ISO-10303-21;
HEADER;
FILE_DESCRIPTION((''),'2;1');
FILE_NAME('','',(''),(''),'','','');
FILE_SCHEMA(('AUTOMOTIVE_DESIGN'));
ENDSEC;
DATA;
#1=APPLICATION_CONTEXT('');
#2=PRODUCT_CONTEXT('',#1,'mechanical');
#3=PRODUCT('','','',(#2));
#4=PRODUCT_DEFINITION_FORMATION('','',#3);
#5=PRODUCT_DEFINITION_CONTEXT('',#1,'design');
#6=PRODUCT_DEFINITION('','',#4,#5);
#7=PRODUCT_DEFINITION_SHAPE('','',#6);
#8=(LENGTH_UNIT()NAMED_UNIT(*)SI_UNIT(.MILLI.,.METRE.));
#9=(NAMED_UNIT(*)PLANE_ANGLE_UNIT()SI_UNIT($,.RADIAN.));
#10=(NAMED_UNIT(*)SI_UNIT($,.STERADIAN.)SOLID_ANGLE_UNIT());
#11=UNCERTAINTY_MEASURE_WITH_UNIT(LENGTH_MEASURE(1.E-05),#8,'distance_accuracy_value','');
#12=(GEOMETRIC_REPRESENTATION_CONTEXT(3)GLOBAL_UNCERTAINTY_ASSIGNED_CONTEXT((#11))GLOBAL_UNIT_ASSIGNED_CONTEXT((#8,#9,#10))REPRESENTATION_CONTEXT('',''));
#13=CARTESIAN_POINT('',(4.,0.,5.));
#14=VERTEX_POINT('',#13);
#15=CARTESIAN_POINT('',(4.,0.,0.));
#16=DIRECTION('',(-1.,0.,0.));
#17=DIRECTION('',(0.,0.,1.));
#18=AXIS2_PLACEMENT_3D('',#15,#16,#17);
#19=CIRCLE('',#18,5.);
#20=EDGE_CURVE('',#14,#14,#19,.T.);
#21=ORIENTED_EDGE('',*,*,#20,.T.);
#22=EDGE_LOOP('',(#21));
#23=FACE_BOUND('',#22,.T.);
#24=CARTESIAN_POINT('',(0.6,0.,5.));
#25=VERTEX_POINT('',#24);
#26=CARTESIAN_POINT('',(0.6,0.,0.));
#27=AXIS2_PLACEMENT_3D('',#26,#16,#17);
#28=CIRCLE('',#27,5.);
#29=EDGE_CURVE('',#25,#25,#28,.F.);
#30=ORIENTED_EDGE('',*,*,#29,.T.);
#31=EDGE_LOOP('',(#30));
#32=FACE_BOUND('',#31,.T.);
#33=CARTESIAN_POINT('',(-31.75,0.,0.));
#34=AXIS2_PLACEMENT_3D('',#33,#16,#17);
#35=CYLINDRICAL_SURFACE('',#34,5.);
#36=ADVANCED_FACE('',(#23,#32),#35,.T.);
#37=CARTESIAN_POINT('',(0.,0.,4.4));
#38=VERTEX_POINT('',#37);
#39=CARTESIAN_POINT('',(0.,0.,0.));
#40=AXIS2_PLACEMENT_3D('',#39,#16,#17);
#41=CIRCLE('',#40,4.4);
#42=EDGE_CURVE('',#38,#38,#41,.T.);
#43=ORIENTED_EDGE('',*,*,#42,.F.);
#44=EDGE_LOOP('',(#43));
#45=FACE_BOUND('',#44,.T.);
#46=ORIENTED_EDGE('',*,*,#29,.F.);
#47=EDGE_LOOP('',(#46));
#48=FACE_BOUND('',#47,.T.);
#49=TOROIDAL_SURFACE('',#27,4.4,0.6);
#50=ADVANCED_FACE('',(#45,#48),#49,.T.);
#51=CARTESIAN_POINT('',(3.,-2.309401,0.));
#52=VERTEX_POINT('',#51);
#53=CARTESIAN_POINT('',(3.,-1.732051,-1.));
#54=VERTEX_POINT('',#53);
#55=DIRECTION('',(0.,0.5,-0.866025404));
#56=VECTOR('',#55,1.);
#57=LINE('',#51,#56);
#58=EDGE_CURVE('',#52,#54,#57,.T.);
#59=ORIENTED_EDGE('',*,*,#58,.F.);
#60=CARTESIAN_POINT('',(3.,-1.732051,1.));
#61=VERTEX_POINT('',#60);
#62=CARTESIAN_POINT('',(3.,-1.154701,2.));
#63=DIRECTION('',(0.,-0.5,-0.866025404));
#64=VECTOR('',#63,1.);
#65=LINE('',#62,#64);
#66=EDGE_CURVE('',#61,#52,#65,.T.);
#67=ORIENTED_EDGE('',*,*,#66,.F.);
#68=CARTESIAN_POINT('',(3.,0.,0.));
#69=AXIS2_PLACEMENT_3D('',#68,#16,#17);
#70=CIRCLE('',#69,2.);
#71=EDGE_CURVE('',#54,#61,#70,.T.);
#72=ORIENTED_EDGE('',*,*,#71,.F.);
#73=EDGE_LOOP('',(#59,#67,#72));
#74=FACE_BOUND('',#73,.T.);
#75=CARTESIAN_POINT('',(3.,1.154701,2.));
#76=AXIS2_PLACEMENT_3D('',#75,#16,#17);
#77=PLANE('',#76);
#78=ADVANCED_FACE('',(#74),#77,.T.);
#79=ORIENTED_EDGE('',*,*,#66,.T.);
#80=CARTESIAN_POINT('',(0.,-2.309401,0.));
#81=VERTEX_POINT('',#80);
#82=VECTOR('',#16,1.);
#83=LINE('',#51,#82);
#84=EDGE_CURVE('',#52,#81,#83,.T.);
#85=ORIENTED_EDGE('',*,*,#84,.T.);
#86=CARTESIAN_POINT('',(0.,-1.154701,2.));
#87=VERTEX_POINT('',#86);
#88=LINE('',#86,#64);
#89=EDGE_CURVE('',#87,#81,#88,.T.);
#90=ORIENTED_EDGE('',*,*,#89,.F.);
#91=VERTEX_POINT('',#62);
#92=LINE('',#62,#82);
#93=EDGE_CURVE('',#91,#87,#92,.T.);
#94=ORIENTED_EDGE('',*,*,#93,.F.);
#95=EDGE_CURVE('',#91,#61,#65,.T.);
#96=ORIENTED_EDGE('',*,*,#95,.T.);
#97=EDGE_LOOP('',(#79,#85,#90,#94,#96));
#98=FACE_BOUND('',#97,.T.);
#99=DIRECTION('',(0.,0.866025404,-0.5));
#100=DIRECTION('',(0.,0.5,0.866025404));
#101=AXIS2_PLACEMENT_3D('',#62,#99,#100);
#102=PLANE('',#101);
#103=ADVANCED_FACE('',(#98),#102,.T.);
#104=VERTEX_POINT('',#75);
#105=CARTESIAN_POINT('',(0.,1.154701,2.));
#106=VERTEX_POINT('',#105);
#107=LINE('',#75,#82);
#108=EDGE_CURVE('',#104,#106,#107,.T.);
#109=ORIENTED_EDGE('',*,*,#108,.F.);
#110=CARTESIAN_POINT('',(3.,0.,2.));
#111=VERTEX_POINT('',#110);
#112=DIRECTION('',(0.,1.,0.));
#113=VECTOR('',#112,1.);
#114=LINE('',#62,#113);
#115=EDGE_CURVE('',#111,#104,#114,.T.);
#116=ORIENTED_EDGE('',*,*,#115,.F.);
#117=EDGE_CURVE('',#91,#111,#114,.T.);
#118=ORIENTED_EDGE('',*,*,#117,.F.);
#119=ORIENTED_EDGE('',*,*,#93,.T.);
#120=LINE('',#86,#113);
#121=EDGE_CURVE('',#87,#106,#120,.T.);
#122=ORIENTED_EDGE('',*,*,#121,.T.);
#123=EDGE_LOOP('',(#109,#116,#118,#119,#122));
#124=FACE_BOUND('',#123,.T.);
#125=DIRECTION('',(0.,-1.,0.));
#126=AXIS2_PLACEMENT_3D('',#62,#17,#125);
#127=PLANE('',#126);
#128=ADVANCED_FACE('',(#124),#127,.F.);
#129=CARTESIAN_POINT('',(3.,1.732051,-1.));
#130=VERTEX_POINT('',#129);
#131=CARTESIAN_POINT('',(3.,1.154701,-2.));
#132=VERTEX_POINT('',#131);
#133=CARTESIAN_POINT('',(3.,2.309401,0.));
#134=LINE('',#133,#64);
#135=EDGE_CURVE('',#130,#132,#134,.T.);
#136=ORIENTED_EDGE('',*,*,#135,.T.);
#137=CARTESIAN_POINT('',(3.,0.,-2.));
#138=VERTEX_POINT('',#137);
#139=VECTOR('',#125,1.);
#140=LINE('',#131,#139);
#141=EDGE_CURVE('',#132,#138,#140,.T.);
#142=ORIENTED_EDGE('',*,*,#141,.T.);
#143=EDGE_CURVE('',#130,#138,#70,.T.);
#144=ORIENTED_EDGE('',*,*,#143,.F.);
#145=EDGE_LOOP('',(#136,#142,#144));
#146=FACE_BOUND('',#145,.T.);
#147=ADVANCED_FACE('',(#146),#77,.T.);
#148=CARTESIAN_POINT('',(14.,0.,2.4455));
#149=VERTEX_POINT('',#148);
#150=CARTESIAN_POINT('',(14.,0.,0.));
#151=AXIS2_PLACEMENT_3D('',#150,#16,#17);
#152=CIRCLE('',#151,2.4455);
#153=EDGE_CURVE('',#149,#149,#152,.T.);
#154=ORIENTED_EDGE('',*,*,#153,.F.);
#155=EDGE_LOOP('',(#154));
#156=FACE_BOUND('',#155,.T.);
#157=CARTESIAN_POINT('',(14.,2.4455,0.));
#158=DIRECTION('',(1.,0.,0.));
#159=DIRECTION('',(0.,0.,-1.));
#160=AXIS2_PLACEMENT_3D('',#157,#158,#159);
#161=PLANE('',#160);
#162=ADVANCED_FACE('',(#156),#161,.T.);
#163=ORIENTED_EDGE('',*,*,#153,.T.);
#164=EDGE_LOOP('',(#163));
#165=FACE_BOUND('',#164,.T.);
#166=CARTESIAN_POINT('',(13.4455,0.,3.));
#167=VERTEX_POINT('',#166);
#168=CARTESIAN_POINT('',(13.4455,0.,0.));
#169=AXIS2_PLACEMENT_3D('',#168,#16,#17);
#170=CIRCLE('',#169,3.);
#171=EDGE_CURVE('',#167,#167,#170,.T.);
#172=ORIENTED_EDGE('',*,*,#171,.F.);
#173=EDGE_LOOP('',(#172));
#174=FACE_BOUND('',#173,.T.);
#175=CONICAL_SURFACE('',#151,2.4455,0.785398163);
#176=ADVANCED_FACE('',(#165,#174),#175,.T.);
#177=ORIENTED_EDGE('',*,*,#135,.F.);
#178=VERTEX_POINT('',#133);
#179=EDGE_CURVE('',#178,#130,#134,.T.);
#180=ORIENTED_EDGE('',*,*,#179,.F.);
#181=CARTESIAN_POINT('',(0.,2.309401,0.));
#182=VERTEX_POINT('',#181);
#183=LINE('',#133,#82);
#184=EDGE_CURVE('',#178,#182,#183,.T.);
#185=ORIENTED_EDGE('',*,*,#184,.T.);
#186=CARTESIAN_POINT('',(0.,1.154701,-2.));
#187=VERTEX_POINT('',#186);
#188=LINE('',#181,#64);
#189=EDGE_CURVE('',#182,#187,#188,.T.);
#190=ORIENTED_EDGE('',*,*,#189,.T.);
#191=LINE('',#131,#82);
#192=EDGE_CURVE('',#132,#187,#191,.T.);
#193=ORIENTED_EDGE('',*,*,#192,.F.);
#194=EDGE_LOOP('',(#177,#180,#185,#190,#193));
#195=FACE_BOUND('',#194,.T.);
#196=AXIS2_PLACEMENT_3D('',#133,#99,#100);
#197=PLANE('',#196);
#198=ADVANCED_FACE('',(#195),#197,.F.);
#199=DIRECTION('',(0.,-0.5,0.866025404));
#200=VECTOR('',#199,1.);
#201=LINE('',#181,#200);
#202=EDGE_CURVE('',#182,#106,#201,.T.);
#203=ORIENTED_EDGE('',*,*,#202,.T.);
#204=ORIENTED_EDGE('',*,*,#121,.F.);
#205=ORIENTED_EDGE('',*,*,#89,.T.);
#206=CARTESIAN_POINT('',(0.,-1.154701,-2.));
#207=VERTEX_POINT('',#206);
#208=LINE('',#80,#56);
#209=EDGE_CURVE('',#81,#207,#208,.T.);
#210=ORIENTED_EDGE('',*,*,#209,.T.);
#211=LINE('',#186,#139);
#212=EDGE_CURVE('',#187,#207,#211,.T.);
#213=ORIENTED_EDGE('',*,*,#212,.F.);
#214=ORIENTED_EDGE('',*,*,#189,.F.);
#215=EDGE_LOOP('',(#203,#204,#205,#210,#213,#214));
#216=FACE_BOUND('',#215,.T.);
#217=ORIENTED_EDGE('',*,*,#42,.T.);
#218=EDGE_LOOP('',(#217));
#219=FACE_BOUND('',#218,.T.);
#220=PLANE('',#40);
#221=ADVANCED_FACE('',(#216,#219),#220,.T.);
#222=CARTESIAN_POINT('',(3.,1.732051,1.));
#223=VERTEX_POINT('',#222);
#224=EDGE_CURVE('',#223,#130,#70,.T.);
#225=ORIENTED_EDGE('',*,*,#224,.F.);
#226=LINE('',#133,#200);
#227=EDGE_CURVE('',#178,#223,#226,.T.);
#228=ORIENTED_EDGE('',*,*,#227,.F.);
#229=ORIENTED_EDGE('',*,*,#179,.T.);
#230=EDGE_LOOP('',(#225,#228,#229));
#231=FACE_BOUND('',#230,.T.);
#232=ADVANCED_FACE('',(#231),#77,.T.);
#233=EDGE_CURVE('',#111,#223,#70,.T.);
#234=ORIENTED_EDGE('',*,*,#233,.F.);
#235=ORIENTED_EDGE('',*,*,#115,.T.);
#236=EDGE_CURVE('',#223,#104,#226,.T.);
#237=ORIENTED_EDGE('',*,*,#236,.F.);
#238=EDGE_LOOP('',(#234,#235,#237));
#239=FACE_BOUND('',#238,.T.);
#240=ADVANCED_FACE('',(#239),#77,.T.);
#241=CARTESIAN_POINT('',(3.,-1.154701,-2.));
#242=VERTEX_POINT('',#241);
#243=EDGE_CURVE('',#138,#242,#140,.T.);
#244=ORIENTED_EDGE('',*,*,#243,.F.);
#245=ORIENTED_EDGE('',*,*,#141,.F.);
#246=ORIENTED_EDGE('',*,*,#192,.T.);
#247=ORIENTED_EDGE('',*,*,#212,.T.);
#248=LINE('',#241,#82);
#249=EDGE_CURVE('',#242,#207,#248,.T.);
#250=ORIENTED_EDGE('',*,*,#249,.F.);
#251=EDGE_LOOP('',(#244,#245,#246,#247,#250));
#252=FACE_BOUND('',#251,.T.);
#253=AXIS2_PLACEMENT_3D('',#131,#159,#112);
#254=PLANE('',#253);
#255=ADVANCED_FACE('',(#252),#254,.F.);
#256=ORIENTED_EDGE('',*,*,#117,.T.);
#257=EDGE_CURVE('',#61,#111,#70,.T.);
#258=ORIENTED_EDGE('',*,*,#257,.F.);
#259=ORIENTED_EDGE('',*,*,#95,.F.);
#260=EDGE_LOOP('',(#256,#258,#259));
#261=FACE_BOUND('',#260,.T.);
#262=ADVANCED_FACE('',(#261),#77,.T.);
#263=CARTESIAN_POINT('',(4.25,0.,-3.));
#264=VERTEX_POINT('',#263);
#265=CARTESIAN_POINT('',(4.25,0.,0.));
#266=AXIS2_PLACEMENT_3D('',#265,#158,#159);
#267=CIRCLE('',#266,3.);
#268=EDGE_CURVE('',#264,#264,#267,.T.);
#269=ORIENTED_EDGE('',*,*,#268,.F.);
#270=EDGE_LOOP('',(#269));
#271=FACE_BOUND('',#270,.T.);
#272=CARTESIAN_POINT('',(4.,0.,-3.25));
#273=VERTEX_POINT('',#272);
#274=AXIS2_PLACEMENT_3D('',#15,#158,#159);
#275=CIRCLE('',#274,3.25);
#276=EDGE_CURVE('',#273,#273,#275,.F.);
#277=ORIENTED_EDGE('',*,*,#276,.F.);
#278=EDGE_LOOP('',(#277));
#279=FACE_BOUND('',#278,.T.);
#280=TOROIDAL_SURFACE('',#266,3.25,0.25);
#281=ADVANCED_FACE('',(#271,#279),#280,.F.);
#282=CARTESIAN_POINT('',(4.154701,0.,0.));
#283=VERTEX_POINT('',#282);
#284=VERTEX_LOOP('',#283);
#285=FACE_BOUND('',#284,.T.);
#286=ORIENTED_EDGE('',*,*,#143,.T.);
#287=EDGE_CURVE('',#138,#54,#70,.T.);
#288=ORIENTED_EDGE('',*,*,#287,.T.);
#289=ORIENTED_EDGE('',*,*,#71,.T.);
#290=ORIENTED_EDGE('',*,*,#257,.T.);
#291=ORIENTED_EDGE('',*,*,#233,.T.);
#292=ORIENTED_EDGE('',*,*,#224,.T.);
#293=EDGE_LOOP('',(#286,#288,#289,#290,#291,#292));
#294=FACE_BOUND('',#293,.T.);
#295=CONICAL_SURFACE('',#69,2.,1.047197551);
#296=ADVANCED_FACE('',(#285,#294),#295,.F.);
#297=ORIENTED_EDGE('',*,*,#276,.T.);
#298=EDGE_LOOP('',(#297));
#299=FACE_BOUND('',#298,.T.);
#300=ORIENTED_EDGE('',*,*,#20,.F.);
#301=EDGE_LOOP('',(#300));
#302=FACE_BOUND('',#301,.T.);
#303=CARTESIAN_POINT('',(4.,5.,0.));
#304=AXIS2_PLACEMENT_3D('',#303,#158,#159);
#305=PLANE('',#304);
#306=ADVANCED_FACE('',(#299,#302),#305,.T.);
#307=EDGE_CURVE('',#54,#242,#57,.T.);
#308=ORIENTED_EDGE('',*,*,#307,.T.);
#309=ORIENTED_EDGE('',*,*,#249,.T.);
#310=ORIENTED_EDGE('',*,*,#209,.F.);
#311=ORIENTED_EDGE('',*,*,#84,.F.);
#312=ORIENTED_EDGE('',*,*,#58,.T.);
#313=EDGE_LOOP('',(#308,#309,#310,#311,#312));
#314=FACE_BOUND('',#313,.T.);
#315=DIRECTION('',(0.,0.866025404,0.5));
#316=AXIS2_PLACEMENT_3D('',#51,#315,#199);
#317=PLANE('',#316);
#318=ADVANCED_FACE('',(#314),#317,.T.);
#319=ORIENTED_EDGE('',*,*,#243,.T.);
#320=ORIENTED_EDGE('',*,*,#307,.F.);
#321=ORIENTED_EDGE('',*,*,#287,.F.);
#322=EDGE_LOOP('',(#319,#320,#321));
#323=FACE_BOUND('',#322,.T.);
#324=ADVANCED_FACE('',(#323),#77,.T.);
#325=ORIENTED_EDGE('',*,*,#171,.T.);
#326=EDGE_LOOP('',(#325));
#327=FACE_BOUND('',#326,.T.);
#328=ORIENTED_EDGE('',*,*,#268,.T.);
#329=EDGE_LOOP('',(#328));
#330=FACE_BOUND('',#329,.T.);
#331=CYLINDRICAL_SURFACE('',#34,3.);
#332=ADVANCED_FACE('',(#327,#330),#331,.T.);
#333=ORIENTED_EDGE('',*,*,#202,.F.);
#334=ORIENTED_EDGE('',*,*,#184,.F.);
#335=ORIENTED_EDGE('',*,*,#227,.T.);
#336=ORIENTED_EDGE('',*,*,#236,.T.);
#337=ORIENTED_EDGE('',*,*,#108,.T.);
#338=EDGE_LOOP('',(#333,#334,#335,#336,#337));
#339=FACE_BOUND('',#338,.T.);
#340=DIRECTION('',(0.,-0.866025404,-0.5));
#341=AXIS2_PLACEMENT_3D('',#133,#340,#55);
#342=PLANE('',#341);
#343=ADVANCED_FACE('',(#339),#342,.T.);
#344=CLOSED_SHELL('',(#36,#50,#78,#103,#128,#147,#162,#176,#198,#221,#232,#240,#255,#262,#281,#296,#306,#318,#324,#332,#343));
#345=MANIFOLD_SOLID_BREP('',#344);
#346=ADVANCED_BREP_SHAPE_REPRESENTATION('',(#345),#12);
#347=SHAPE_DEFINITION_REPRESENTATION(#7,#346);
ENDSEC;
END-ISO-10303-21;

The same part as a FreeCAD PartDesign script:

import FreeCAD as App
import Part
import Sketcher
from FreeCAD import Vector
Q = App.Units.Quantity


def edges_at(feature, points):
    """Names of the edges that pass closest to the given points."""
    edges = feature.Shape.Edges
    near = lambda p: min(range(len(edges)), key=lambda i: edges[i].distToShape(Part.Vertex(*p))[0])
    return sorted({f"Edge{near(p) + 1}" for p in points})

doc = App.newDocument("Part")
body = doc.addObject("PartDesign::Body", "Body")

# Sketch on XY plane
sketch1 = doc.addObject("Sketcher::SketchObject", "Sketch")
body.addObject(sketch1)
sketch1.AttachmentSupport = (doc.XY_Plane, [""])
sketch1.MapMode = "FlatFace"
sketch1.addGeometry([
    Part.LineSegment(Vector(0, 5, 0), Vector(0, 0, 0)),  # 0
    Part.LineSegment(Vector(0, 0, 0), Vector(14, 0, 0)),  # 1
    Part.LineSegment(Vector(14, 0, 0), Vector(14, 2.4, 0)),  # 2
    Part.LineSegment(Vector(14, 2.4, 0), Vector(13.4, 3, 0)),  # 3
    Part.LineSegment(Vector(13.4, 3, 0), Vector(4, 3, 0)),  # 4
    Part.LineSegment(Vector(4, 3, 0), Vector(4, 5, 0)),  # 5
    Part.LineSegment(Vector(4, 5, 0), Vector(0, 5, 0)),  # 6
], False)
sketch1.addConstraint([
    Sketcher.Constraint("Coincident", 0, 2, 1, 1),
    Sketcher.Constraint("Coincident", 1, 2, 2, 1),
    Sketcher.Constraint("Coincident", 2, 2, 3, 1),
    Sketcher.Constraint("Coincident", 3, 2, 4, 1),
    Sketcher.Constraint("Coincident", 4, 2, 5, 1),
    Sketcher.Constraint("Coincident", 5, 2, 6, 1),
    Sketcher.Constraint("Coincident", 6, 2, 0, 1),
    Sketcher.Constraint("Vertical", 0),
    Sketcher.Constraint("Horizontal", 1),
    Sketcher.Constraint("Vertical", 2),
    Sketcher.Constraint("Horizontal", 4),
    Sketcher.Constraint("Vertical", 5),
    Sketcher.Constraint("Horizontal", 6),
    Sketcher.Constraint("Coincident", 0, 2, -1, 1),
    Sketcher.Constraint("DistanceX", 1, 1, 1, 2, 14.0),
    Sketcher.Constraint("DistanceX", 6, 2, 6, 1, 4.0),
    Sketcher.Constraint("DistanceY", 0, 2, 0, 1, 5.0),
    Sketcher.Constraint("DistanceY", 5, 1, 5, 2, 2.0),
    Sketcher.Constraint("Angle", 3, Q("135 deg")),
    Sketcher.Constraint("DistanceX", 4, 2, 4, 1, 9.4455),
])
revolution = doc.addObject("PartDesign::Revolution", "Revolution")
body.addObject(revolution)
revolution.Profile = sketch1
revolution.ReferenceAxis = (sketch1, ["H_Axis"])
revolution.Angle = 360
doc.recompute()

fillet = doc.addObject("PartDesign::Fillet", "Fillet")
body.addObject(fillet)
fillet.Base = (revolution, edges_at(revolution, [(4, 0, -3)]))
fillet.Radius = 0.25
doc.recompute()

fillet2 = doc.addObject("PartDesign::Fillet", "Fillet001")
body.addObject(fillet2)
fillet2.Base = (fillet, edges_at(fillet, [(0, 0, -5)]))
fillet2.Radius = 0.6

# Sketch on XY plane
sketch2 = doc.addObject("Sketcher::SketchObject", "Sketch001")
body.addObject(sketch2)
sketch2.AttachmentSupport = (doc.XY_Plane, [""])
sketch2.MapMode = "FlatFace"
sketch2.addGeometry([
    Part.LineSegment(Vector(3, 2, 0), Vector(0, 2, 0)),
    Part.LineSegment(Vector(0, 2, 0), Vector(0, 0, 0)),
    Part.LineSegment(Vector(0, 0, 0), Vector(4.2, 0, 0)),
    Part.LineSegment(Vector(4.2, 0, 0), Vector(3, 2, 0)),
], False)
sketch2.addConstraint([
    Sketcher.Constraint("Coincident", 0, 2, 1, 1),
    Sketcher.Constraint("Coincident", 1, 2, 2, 1),
    Sketcher.Constraint("Coincident", 2, 2, 3, 1),
    Sketcher.Constraint("Coincident", 3, 2, 0, 1),
    Sketcher.Constraint("Horizontal", 0),
    Sketcher.Constraint("Vertical", 1),
    Sketcher.Constraint("Horizontal", 2),
    Sketcher.Constraint("Coincident", 1, 2, -1, 1),
    Sketcher.Constraint("DistanceX", 0, 2, 0, 1, 3.0),
    Sketcher.Constraint("DistanceY", 1, 2, 1, 1, 2.0),
    Sketcher.Constraint("Angle", 3, Q("120 deg")),
])
groove = doc.addObject("PartDesign::Groove", "Groove")
body.addObject(groove)
groove.Profile = sketch2
groove.ReferenceAxis = (sketch2, ["H_Axis"])
groove.Angle = 360

# Sketch on YZ plane
sketch3 = doc.addObject("Sketcher::SketchObject", "Sketch002")
body.addObject(sketch3)
sketch3.AttachmentSupport = (doc.YZ_Plane, [""])
sketch3.MapMode = "FlatFace"
sketch3.addGeometry([
    Part.LineSegment(Vector(2.3, 0, 0), Vector(1.2, -2, 0)),  # 0
    Part.LineSegment(Vector(1.2, -2, 0), Vector(-1.2, -2, 0)),  # 1
    Part.LineSegment(Vector(-1.2, -2, 0), Vector(-2.3, 0, 0)),  # 2
    Part.LineSegment(Vector(-2.3, 0, 0), Vector(-1.2, 2, 0)),  # 3
    Part.LineSegment(Vector(-1.2, 2, 0), Vector(1.2, 2, 0)),  # 4
    Part.LineSegment(Vector(1.2, 2, 0), Vector(2.3, 0, 0)),  # 5
], False)
sketch3.addConstraint([
    Sketcher.Constraint("Coincident", 0, 2, 1, 1),
    Sketcher.Constraint("Coincident", 1, 2, 2, 1),
    Sketcher.Constraint("Coincident", 2, 2, 3, 1),
    Sketcher.Constraint("Coincident", 3, 2, 4, 1),
    Sketcher.Constraint("Coincident", 4, 2, 5, 1),
    Sketcher.Constraint("Coincident", 5, 2, 0, 1),
    Sketcher.Constraint("Horizontal", 1),
    Sketcher.Constraint("Horizontal", 4),
    Sketcher.Constraint("Symmetric", 0, 2, 3, 2, -1, 1),
    Sketcher.Constraint("Symmetric", 2, 2, 5, 2, -1, 1),
    Sketcher.Constraint("PointOnObject", 2, 2, -1),
    Sketcher.Constraint("Parallel", 2, 5),
    Sketcher.Constraint("Vertical", 1, 2, 3, 2),
    Sketcher.Constraint("Angle", 0, Q("-120 deg")),
    Sketcher.Constraint("DistanceY", 0, 2, -1, 1, 2.0),
    Sketcher.Constraint("DistanceX", 1, 2, 1, 1, 2.309401),
])
pocket1 = doc.addObject("PartDesign::Pocket", "Pocket")
body.addObject(pocket1)
pocket1.Profile = sketch3
pocket1.Length = 3
pocket1.Reversed = True

doc.recompute()
